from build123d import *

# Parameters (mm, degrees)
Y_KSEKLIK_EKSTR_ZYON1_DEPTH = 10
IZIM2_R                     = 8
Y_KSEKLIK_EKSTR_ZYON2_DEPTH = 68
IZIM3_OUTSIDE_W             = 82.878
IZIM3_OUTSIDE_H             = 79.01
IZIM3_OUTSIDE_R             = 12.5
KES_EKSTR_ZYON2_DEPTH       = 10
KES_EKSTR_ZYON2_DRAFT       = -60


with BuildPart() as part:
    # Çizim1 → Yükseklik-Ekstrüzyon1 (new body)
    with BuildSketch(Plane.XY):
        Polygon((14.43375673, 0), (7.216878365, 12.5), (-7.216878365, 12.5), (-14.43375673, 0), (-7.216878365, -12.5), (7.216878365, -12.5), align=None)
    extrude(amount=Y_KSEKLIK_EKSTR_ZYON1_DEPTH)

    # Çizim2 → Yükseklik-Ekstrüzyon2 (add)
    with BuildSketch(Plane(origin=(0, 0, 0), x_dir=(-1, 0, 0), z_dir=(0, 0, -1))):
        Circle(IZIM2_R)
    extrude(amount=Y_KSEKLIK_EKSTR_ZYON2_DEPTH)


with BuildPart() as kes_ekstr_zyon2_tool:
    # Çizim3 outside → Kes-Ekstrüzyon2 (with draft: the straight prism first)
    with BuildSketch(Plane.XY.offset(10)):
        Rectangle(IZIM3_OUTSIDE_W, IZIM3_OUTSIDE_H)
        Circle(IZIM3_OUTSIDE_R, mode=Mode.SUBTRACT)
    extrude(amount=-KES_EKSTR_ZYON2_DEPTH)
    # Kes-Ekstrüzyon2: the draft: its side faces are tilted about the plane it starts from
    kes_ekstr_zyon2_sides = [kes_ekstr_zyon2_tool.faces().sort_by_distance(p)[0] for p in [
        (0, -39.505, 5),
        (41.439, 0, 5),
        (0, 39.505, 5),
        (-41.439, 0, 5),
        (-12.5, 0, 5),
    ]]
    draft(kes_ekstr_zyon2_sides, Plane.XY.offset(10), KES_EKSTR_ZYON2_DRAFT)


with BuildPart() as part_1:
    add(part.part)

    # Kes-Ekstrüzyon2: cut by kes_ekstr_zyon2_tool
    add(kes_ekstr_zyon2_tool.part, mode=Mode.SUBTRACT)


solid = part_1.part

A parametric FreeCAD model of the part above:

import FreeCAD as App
import Part
import Sketcher
from FreeCAD import Vector
Q = App.Units.Quantity


def faces_at(feature, points):
    """Names of the faces that lie closest to the given points."""
    faces = feature.Shape.Faces
    near = lambda p: min(range(len(faces)), key=lambda i: faces[i].distToShape(Part.Vertex(*p))[0])
    return sorted({f"Face{near(p) + 1}" for p in points})

doc = App.newDocument("Part")
params = doc.addObject("Spreadsheet::Sheet", "Params")
for row, (alias, value) in enumerate([
    ("pad1_length", "10 mm"),
    ("sketch2_diameter", "16 mm"),
    ("pad2_length", "68 mm"),
    ("sketch3_diameter", "25 mm"),
    ("sketch3_height", "79.01 mm"),
    ("pad3_length", "10 mm"),
    ("draft_angle", "60 deg"),
], start=1):
    params.set(f"A{row}", alias)
    params.set(f"B{row}", "=" + value)
    params.setAlias(f"B{row}", alias)

body = doc.addObject("PartDesign::Body", "Body")

sketch1 = doc.addObject("Sketcher::SketchObject", "Sketch")
body.addObject(sketch1)
sketch1.AttachmentSupport = (doc.XY_Plane, [""])
sketch1.MapMode = "FlatFace"
sketch1.addGeometry(Part.LineSegment(Vector(14, 0, 0), Vector(7, 12, 0)), False)
sketch1.addGeometry(Part.LineSegment(Vector(7, 12, 0), Vector(-7, 12, 0)), False)
sketch1.addGeometry(Part.LineSegment(Vector(-7, 12, 0), Vector(-14, 0, 0)), False)
sketch1.addGeometry(Part.LineSegment(Vector(-14, 0, 0), Vector(-7, -12, 0)), False)
sketch1.addGeometry(Part.LineSegment(Vector(-7, -12, 0), Vector(7, -12, 0)), False)
sketch1.addGeometry(Part.LineSegment(Vector(7, -12, 0), Vector(14, 0, 0)), False)
sketch1.addConstraint(Sketcher.Constraint("Coincident", 0, 2, 1, 1))
sketch1.addConstraint(Sketcher.Constraint("Coincident", 1, 2, 2, 1))
sketch1.addConstraint(Sketcher.Constraint("Coincident", 2, 2, 3, 1))
sketch1.addConstraint(Sketcher.Constraint("Coincident", 3, 2, 4, 1))
sketch1.addConstraint(Sketcher.Constraint("Coincident", 4, 2, 5, 1))
sketch1.addConstraint(Sketcher.Constraint("Coincident", 5, 2, 0, 1))
sketch1.addConstraint(Sketcher.Constraint("Horizontal", 1))
sketch1.addConstraint(Sketcher.Constraint("Horizontal", 4))
sketch1.addConstraint(Sketcher.Constraint("Symmetric", 0, 2, 3, 2, -1, 1))
sketch1.addConstraint(Sketcher.Constraint("Symmetric", 2, 2, 5, 2, -1, 1))
sketch1.addConstraint(Sketcher.Constraint("PointOnObject", 2, 2, -1))
sketch1.addConstraint(Sketcher.Constraint("Parallel", 2, 5))
sketch1.addConstraint(Sketcher.Constraint("Vertical", 1, 2, 3, 2))
sketch1.addConstraint(Sketcher.Constraint("Angle", 0, Q("120 deg")))
sketch1.addConstraint(Sketcher.Constraint("DistanceY", 3, 2, 1, 2, Q("25 mm")))
sketch1.addConstraint(Sketcher.Constraint("DistanceX", 1, 2, 1, 1, Q("14.433757 mm")))
pad1 = doc.addObject("PartDesign::Pad", "Pad")
body.addObject(pad1)
pad1.Profile = sketch1
pad1.setExpression("Length", "Params.pad1_length")

sketch2 = doc.addObject("Sketcher::SketchObject", "Sketch001")
body.addObject(sketch2)
sketch2.AttachmentSupport = (doc.XY_Plane, [""])
sketch2.MapMode = "FlatFace"
sketch2.addGeometry(Part.Circle(Vector(0, 0, 0), Vector(0, 0, 1), 8), False)
sketch2.addConstraint(Sketcher.Constraint("Coincident", 0, 3, -1, 1))
sketch2.addConstraint(Sketcher.Constraint("Diameter", 0, Q("16 mm")))
sketch2.setExpression("Constraints[1]", "Params.sketch2_diameter")
pad2 = doc.addObject("PartDesign::Pad", "Pad001")
body.addObject(pad2)
pad2.Profile = sketch2
pad2.setExpression("Length", "Params.pad2_length")
pad2.Reversed = True
body2 = doc.addObject("PartDesign::Body", "Body001")

sketch3 = doc.addObject("Sketcher::SketchObject", "Sketch002")
body2.addObject(sketch3)
sketch3.AttachmentSupport = (doc.getObject("XY_Plane001"), [""])
sketch3.MapMode = "FlatFace"
sketch3.AttachmentOffset = App.Placement(Vector(0, 0, 10), App.Rotation())
sketch3.addGeometry(Part.LineSegment(Vector(-41, 40, 0), Vector(-41, -40, 0)), False)
sketch3.addGeometry(Part.LineSegment(Vector(-41, -40, 0), Vector(41, -40, 0)), False)
sketch3.addGeometry(Part.LineSegment(Vector(41, -40, 0), Vector(41, 40, 0)), False)
sketch3.addGeometry(Part.LineSegment(Vector(41, 40, 0), Vector(-41, 40, 0)), False)
sketch3.addGeometry(Part.Circle(Vector(0, 0, 0), Vector(0, 0, 1), 12), False)
sketch3.addConstraint(Sketcher.Constraint("Coincident", 0, 2, 1, 1))
sketch3.addConstraint(Sketcher.Constraint("Coincident", 1, 2, 2, 1))
sketch3.addConstraint(Sketcher.Constraint("Coincident", 2, 2, 3, 1))
sketch3.addConstraint(Sketcher.Constraint("Coincident", 3, 2, 0, 1))
sketch3.addConstraint(Sketcher.Constraint("Vertical", 0))
sketch3.addConstraint(Sketcher.Constraint("Horizontal", 1))
sketch3.addConstraint(Sketcher.Constraint("Vertical", 2))
sketch3.addConstraint(Sketcher.Constraint("Horizontal", 3))
sketch3.addConstraint(Sketcher.Constraint("Coincident", 4, 3, -1, 1))
sketch3.addConstraint(Sketcher.Constraint("Symmetric", 0, 2, 2, 2, -1, 1))
sketch3.addConstraint(Sketcher.Constraint("Diameter", 4, Q("25 mm")))
sketch3.addConstraint(Sketcher.Constraint("DistanceY", 0, 2, 0, 1, Q("79.01 mm")))
sketch3.addConstraint(Sketcher.Constraint("DistanceX", 1, 1, 1, 2, Q("82.878 mm")))
sketch3.setExpression("Constraints[10]", "Params.sketch3_diameter")
sketch3.setExpression("Constraints[11]", "Params.sketch3_height")
pad3 = doc.addObject("PartDesign::Pad", "Pad002")
body2.addObject(pad3)
pad3.Profile = sketch3
pad3.setExpression("Length", "Params.pad3_length")
pad3.Reversed = True
doc.recompute()

datumplane = doc.addObject("PartDesign::Plane", "DatumPlane")
body2.addObject(datumplane)
datumplane.AttachmentSupport = (doc.getObject("XY_Plane001"), [""])
datumplane.MapMode = "FlatFace"
datumplane.AttachmentOffset = App.Placement(Vector(0, 0, 10), App.Rotation())
draft = doc.addObject("PartDesign::Draft", "Draft")
body2.addObject(draft)
draft.Base = (pad3, faces_at(pad3, [
    (0, -39.505, 5),
    (41.439, 0, 5),
    (0, 39.505, 5),
    (-41.439, 0, 5),
    (-12.5, 0, 5),
]))
draft.NeutralPlane = (datumplane, [""])
draft.setExpression("Angle", "Params.draft_angle")
draft.Reversed = True
doc.recompute()

boolean = doc.addObject("PartDesign::Boolean", "Boolean")
body.addObject(boolean)
boolean.Type = "Cut"
boolean.addObjects([body2])

doc.recompute()
